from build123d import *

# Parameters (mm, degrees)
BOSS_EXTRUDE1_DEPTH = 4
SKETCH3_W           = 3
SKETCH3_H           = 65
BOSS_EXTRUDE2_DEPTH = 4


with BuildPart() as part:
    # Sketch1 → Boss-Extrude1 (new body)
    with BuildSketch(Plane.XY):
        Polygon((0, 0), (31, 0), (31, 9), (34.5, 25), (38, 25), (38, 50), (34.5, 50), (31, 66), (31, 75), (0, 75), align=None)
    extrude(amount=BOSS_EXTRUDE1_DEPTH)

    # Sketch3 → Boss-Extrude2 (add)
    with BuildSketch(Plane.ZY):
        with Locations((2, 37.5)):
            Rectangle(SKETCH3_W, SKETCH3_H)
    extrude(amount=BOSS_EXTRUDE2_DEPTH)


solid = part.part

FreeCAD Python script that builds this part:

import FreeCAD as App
import Part
import Sketcher

V = App.Vector


def add_polygon(sketch, points):
    """Adds a closed chain of lines whose ends are joined by coincident constraints."""
    first, n = sketch.GeometryCount, len(points)
    for a, b in zip(points, points[1:] + points[:1]):
        sketch.addGeometry(Part.LineSegment(App.Vector(*a, 0), App.Vector(*b, 0)), False)
    for i in range(n):
        sketch.addConstraint(Sketcher.Constraint("Coincident", first + i, 2, first + (i + 1) % n, 1))

doc = App.newDocument("Part")
body = doc.addObject("PartDesign::Body", "Body")

# Sketch on XY plane
sketch1 = body.newObject("Sketcher::SketchObject", "Sketch")
sketch1.AttachmentSupport = (doc.getObject("XY_Plane"), [""])
sketch1.MapMode = "FlatFace"
add_polygon(sketch1, [(0, 0), (31, 0), (31, 9), (34.5, 25), (38, 25), (38, 50), (34.5, 50), (31, 66), (31, 75), (0, 75)])  # lines 0-9
sketch1.addConstraint([
    Sketcher.Constraint("Horizontal", 0),
    Sketcher.Constraint("Vertical", 1),
    Sketcher.Constraint("Horizontal", 3),
    Sketcher.Constraint("Vertical", 4),
    Sketcher.Constraint("Horizontal", 5),
    Sketcher.Constraint("Vertical", 7),
    Sketcher.Constraint("Horizontal", 8),
    Sketcher.Constraint("Vertical", 9),
    Sketcher.Constraint("Coincident", 9, 2, -1, 1),
    Sketcher.Constraint("Vertical", 2, 2, 5, 2),
    Sketcher.Constraint("Vertical", 1, 2, 6, 2),
    Sketcher.Constraint("Equal", 1, 7),
    Sketcher.Constraint("Equal", 2, 6),
    Sketcher.Constraint("DistanceX", 0, 1, 0, 2, 31.0),
    Sketcher.Constraint("DistanceY", 1, 1, 1, 2, 9.0),
    Sketcher.Constraint("DistanceY", 4, 1, 4, 2, 25.0),
    Sketcher.Constraint("DistanceY", 9, 2, 9, 1, 75.0),
    Sketcher.Constraint("DistanceX", 3, 1, 3, 2, 3.5),
    Sketcher.Constraint("DistanceX", -1, 1, 3, 2, 38.0),
])
pad1 = body.newObject("PartDesign::Pad", "Pad")
pad1.Profile = sketch1
pad1.Length = 4

# Sketch on YZ plane
sketch2 = body.newObject("Sketcher::SketchObject", "Sketch001")
sketch2.AttachmentSupport = (doc.getObject("YZ_Plane"), [""])
sketch2.MapMode = "FlatFace"
add_polygon(sketch2, [(70, 0.5), (5, 0.5), (5, 3.5), (70, 3.5)])  # lines 0-3
sketch2.addConstraint([
    Sketcher.Constraint("Horizontal", 0),
    Sketcher.Constraint("Vertical", 1),
    Sketcher.Constraint("Horizontal", 2),
    Sketcher.Constraint("Vertical", 3),
    Sketcher.Constraint("DistanceX", 0, 2, 0, 1, 65.0),
    Sketcher.Constraint("DistanceY", 1, 1, 1, 2, 3.0),
    Sketcher.Constraint("DistanceX", -1, 1, 0, 2, 5.0),
    Sketcher.Constraint("DistanceY", -1, 1, 0, 2, 0.5),
])
pad2 = body.newObject("PartDesign::Pad", "Pad001")
pad2.Profile = sketch2
pad2.Length = 4
pad2.Reversed = True

doc.recompute()
